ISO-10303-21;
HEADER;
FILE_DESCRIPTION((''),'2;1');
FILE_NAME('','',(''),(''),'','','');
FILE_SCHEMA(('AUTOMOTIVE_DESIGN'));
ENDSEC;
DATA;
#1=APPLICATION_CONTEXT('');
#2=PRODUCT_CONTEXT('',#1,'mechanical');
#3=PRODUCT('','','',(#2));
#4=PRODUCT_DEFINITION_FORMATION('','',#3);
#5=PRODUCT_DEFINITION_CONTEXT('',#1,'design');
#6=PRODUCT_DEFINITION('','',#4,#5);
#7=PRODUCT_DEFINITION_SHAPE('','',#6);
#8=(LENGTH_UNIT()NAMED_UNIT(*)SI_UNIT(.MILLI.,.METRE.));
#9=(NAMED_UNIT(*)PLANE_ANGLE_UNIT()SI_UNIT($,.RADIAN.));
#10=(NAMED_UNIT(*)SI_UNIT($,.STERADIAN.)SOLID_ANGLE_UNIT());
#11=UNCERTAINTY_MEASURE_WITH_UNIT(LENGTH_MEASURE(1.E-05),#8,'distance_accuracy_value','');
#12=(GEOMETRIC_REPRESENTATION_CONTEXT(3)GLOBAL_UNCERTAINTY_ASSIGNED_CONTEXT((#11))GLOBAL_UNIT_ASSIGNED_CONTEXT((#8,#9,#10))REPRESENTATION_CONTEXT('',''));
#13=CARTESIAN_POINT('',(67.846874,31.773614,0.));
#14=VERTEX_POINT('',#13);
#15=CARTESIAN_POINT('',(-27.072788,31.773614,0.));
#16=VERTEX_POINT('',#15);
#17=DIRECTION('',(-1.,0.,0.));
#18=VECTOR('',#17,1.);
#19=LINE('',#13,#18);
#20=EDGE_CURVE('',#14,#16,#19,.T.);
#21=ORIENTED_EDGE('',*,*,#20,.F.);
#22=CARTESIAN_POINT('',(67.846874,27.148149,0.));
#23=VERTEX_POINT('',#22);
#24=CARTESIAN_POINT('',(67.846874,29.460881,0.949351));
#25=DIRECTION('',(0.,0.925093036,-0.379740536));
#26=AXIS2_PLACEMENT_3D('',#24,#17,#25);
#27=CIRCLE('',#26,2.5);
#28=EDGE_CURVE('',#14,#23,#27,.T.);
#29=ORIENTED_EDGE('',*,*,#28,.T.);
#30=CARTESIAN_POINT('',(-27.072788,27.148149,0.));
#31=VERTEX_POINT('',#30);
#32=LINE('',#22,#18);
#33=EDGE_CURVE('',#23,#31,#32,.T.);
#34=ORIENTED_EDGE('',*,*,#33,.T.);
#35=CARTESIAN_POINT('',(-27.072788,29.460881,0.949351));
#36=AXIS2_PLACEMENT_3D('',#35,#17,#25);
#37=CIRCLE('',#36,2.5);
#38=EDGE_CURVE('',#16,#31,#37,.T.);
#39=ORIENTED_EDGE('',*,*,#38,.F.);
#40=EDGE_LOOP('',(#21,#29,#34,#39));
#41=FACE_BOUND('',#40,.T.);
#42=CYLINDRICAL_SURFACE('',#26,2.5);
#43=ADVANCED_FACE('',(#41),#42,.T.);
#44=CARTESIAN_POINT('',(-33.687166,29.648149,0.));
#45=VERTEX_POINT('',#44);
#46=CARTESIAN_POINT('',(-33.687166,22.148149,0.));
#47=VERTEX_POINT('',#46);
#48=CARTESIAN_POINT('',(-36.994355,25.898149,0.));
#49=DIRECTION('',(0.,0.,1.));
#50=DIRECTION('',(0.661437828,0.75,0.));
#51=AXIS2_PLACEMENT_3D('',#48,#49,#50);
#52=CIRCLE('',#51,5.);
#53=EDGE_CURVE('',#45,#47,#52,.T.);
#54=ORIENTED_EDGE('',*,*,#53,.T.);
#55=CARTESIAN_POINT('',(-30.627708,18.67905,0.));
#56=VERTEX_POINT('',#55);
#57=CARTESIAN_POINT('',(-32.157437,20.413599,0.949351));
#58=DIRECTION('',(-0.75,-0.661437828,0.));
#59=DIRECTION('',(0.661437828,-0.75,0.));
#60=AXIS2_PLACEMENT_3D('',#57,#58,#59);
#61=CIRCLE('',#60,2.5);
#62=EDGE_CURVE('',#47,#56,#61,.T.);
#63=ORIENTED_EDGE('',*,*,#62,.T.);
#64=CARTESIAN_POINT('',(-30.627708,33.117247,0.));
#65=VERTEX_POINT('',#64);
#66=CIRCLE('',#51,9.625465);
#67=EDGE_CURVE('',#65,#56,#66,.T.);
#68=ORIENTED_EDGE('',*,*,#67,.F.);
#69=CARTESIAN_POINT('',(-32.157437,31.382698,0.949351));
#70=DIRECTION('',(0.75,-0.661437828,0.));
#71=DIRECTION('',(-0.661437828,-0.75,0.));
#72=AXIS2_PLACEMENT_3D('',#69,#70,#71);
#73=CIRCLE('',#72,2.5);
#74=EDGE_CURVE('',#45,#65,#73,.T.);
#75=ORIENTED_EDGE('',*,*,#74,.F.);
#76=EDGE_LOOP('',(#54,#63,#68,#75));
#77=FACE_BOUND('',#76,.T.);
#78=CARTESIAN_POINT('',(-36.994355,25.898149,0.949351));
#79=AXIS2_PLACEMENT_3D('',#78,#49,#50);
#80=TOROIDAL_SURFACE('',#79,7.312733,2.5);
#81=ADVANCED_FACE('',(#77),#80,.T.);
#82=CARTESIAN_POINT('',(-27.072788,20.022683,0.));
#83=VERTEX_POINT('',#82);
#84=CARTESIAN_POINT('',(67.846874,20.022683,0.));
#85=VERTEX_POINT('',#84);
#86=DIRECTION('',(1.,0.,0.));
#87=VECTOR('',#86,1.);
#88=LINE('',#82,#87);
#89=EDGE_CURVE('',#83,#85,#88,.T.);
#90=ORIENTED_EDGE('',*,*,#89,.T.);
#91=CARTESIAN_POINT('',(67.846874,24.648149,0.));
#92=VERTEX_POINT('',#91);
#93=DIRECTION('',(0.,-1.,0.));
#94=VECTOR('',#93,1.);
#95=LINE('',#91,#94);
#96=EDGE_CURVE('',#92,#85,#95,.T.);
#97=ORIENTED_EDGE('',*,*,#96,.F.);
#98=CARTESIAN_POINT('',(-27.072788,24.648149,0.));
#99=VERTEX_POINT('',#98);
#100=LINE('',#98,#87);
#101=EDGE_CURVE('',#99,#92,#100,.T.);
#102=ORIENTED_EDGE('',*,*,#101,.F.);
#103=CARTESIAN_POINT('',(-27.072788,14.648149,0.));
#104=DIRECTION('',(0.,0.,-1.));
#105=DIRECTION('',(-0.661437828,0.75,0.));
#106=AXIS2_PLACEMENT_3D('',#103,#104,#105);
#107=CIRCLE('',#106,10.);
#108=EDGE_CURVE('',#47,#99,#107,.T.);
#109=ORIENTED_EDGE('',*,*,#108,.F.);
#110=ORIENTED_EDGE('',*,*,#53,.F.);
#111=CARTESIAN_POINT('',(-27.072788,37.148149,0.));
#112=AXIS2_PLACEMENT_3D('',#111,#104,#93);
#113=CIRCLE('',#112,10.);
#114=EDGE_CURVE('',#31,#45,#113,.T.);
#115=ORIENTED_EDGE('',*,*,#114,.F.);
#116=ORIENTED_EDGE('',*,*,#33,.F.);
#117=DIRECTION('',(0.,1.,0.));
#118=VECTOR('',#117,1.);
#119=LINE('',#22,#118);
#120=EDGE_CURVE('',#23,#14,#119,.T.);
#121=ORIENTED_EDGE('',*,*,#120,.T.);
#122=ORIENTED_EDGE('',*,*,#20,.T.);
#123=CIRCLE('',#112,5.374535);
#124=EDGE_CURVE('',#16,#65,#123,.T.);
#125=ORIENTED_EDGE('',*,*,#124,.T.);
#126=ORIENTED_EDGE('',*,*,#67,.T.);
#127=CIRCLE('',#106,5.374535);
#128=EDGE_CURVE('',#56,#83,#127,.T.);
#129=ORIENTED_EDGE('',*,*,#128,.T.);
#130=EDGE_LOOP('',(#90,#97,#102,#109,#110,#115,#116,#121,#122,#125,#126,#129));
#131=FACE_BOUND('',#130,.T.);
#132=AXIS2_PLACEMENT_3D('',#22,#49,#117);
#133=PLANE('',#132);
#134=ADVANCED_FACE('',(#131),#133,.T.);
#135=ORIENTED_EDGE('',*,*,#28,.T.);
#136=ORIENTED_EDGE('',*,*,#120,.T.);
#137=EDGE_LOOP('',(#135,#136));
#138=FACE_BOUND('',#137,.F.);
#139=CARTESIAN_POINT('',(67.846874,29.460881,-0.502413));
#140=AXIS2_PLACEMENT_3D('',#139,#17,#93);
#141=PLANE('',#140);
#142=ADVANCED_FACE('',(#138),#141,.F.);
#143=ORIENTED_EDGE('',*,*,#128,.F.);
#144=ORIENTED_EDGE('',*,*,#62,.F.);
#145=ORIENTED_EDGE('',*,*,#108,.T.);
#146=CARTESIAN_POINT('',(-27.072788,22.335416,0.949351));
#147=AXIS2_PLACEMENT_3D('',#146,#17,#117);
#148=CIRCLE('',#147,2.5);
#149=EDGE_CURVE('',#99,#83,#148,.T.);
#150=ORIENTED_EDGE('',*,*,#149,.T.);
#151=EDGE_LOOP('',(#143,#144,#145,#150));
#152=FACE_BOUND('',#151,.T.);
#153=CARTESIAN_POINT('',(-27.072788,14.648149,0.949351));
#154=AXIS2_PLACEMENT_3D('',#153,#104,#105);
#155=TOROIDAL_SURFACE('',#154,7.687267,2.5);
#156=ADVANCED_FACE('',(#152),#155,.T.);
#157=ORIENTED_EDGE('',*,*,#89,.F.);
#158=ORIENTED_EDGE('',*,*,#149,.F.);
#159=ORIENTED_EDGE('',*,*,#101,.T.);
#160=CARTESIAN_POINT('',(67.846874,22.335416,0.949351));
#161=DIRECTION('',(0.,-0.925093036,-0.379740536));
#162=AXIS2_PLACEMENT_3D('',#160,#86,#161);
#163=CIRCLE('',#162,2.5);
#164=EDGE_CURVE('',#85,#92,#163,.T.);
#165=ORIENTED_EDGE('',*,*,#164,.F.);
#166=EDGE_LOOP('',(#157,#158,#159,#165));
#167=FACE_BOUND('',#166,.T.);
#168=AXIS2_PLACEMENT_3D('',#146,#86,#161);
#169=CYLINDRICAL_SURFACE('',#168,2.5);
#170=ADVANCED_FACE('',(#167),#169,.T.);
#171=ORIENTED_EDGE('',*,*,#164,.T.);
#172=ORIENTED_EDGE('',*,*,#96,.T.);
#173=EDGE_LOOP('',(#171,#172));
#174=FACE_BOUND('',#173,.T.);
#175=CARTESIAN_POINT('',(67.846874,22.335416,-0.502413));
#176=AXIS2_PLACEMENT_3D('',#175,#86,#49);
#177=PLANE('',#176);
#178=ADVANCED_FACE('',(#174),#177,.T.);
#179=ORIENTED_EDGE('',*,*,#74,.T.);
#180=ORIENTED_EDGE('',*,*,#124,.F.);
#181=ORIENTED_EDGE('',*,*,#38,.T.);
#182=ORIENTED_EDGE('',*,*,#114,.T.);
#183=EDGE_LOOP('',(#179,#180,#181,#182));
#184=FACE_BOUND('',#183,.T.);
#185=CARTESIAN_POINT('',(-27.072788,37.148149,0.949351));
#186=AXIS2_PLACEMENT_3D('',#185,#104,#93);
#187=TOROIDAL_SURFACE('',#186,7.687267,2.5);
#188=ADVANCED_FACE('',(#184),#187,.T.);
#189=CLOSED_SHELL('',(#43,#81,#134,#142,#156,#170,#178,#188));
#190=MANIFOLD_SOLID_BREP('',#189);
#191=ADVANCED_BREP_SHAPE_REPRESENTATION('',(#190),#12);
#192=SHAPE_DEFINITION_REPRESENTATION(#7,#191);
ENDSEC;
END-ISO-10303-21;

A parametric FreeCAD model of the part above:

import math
import FreeCAD as App
import Part
import Sketcher

V = App.Vector
Q = App.Units.Quantity

doc = App.newDocument("Part")
body = doc.addObject("PartDesign::Body", "Body")

# Sketch on YZ plane
sketch1 = body.newObject("Sketcher::SketchObject", "Sketch")
sketch1.AttachmentSupport = (doc.getObject("YZ_Plane"), [""])
sketch1.MapMode = "FlatFace"
sketch1.AttachmentOffset = App.Placement(V(0, 0, 67.846874), App.Rotation())
sketch1.addGeometry([
    Part.LineSegment(V(24.6, 0, 0), V(20, 0, 0)),
    Part.ArcOfCircle(Part.Circle(V(22.3, 0.9, 0), V(0, 0, 1), 2.5), math.radians(-158), math.radians(-22)),
], False)
sketch1.addConstraint([
    Sketcher.Constraint("Coincident", 0, 1, 1, 2),
    Sketcher.Constraint("Coincident", 1, 1, 0, 2),
    Sketcher.Constraint("Horizontal", 0),
    Sketcher.Constraint("PointOnObject", 0, 1, -1),
    Sketcher.Constraint("Radius", 1, Q("2.5 mm")),
    Sketcher.Constraint("DistanceX", 0, 2, 0, 1, Q("4.625465 mm")),
    Sketcher.Constraint("DistanceX", -1, 1, 0, 1, Q("24.648149 mm")),
])

# Sketch on XY plane
sketch2 = body.newObject("Sketcher::SketchObject", "Sketch001")
sketch2.AttachmentSupport = (doc.getObject("XY_Plane"), [""])
sketch2.MapMode = "FlatFace"
sketch2.addGeometry([
    Part.LineSegment(V(68, 27, 0), V(-27, 27, 0)),  # 0
    Part.ArcOfCircle(Part.Circle(V(-27, 37, 0), V(0, 0, 1), 10), math.radians(-131), math.radians(-90)),  # 1
    Part.ArcOfCircle(Part.Circle(V(-37, 26, 0), V(0, 0, 1), 5), math.radians(49), math.radians(311)),  # 2
    Part.ArcOfCircle(Part.Circle(V(-27, 15, 0), V(0, 0, 1), 10), math.radians(90), math.radians(131)),  # 3
    Part.LineSegment(V(-27, 25, 0), V(68, 25, 0)),  # 4
], False)
sketch2.addConstraint([
    Sketcher.Constraint("Tangent", 0, 2, 1, 2),
    Sketcher.Constraint("Tangent", 1, 1, 2, 1),
    Sketcher.Constraint("Tangent", 2, 2, 3, 2),
    Sketcher.Constraint("Tangent", 3, 1, 4, 1),
    Sketcher.Constraint("Horizontal", 0),
    Sketcher.Constraint("Horizontal", 4),
    Sketcher.Constraint("Equal", 1, 3),
    Sketcher.Constraint("Vertical", 1, 3, 3, 3),
    Sketcher.Constraint("Vertical", 0, 1, 4, 2),
    Sketcher.Constraint("Radius", 1, Q("10 mm")),
    Sketcher.Constraint("Radius", 2, Q("5 mm")),
    Sketcher.Constraint("DistanceY", 3, 3, 1, 1, Q("15 mm")),
    Sketcher.Constraint("DistanceX", 0, 2, 0, 1, Q("94.919662 mm")),
    Sketcher.Constraint("DistanceY", -1, 1, 1, 3, Q("37.148149 mm")),
    Sketcher.Constraint("DistanceX", 1, 3, -1, 1, Q("27.072788 mm")),
])
doc.recompute()

additivepipe = body.newObject("PartDesign::AdditivePipe", "AdditivePipe")
additivepipe.Profile = sketch1
additivepipe.Spine = (sketch2, ["Edge1", "Edge2", "Edge3", "Edge4", "Edge5"])

doc.recompute()
